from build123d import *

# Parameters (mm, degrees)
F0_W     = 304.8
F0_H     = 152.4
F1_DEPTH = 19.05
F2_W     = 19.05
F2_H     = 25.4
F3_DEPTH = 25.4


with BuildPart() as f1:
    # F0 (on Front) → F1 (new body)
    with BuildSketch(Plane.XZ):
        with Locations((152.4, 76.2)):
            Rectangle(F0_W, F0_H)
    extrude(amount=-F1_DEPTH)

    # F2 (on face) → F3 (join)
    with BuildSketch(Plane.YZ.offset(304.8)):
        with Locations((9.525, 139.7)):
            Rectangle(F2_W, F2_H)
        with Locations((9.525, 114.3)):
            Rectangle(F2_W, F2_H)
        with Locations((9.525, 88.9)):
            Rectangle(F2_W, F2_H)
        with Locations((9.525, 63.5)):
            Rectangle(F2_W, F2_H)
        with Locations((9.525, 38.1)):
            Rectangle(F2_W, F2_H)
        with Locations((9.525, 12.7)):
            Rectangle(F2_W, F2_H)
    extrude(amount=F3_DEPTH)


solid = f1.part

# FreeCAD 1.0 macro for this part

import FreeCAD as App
import Part
import Sketcher
from FreeCAD import Vector
Q = App.Units.Quantity


def add_polygon(sketch, points):
    """Adds a closed chain of lines whose ends are joined by coincident constraints."""
    first, n = sketch.GeometryCount, len(points)
    for a, b in zip(points, points[1:] + points[:1]):
        sketch.addGeometry(Part.LineSegment(App.Vector(*a, 0), App.Vector(*b, 0)), False)
    for i in range(n):
        sketch.addConstraint(Sketcher.Constraint("Coincident", first + i, 2, first + (i + 1) % n, 1))

doc = App.newDocument("Part")
body = doc.addObject("PartDesign::Body", "Body")

# Sketch on XZ plane
sketch1 = doc.addObject("Sketcher::SketchObject", "Sketch")
body.addObject(sketch1)
sketch1.AttachmentSupport = (doc.XZ_Plane, [""])
sketch1.MapMode = "FlatFace"
add_polygon(sketch1, [(0, 152), (0, 0), (305, 0), (305, 152)])  # lines 0-3
sketch1.addConstraint([
    Sketcher.Constraint("Vertical", 0),
    Sketcher.Constraint("Horizontal", 1),
    Sketcher.Constraint("Vertical", 2),
    Sketcher.Constraint("Horizontal", 3),
    Sketcher.Constraint("Coincident", 0, 2, -1, 1),
    Sketcher.Constraint("DistanceX", 1, 1, 1, 2, Q("12 in")),
    Sketcher.Constraint("DistanceY", 0, 2, 0, 1, Q("6 in")),
])
pad1 = doc.addObject("PartDesign::Pad", "Pad")
body.addObject(pad1)
pad1.Profile = sketch1
pad1.Length = Q("0.75 in")
pad1.Reversed = True

# Sketch on YZ plane
sketch2 = doc.addObject("Sketcher::SketchObject", "Sketch001")
body.addObject(sketch2)
sketch2.AttachmentSupport = (doc.YZ_Plane, [""])
sketch2.MapMode = "FlatFace"
sketch2.AttachmentOffset = App.Placement(Vector(0, 0, 12 * 25.4), App.Rotation())
add_polygon(sketch2, [(0, 152), (0, 0), (19, 0), (19, 152)])  # lines 0-3
sketch2.addConstraint([
    Sketcher.Constraint("Vertical", 0),
    Sketcher.Constraint("Horizontal", 1),
    Sketcher.Constraint("Vertical", 2),
    Sketcher.Constraint("Horizontal", 3),
    Sketcher.Constraint("Coincident", 0, 2, -1, 1),
    Sketcher.Constraint("DistanceY", 0, 2, 0, 1, Q("6 in")),
    Sketcher.Constraint("DistanceX", 1, 1, 1, 2, Q("0.75 in")),
])
pad2 = doc.addObject("PartDesign::Pad", "Pad001")
body.addObject(pad2)
pad2.Profile = sketch2
pad2.Length = Q("1 in")

doc.recompute()
